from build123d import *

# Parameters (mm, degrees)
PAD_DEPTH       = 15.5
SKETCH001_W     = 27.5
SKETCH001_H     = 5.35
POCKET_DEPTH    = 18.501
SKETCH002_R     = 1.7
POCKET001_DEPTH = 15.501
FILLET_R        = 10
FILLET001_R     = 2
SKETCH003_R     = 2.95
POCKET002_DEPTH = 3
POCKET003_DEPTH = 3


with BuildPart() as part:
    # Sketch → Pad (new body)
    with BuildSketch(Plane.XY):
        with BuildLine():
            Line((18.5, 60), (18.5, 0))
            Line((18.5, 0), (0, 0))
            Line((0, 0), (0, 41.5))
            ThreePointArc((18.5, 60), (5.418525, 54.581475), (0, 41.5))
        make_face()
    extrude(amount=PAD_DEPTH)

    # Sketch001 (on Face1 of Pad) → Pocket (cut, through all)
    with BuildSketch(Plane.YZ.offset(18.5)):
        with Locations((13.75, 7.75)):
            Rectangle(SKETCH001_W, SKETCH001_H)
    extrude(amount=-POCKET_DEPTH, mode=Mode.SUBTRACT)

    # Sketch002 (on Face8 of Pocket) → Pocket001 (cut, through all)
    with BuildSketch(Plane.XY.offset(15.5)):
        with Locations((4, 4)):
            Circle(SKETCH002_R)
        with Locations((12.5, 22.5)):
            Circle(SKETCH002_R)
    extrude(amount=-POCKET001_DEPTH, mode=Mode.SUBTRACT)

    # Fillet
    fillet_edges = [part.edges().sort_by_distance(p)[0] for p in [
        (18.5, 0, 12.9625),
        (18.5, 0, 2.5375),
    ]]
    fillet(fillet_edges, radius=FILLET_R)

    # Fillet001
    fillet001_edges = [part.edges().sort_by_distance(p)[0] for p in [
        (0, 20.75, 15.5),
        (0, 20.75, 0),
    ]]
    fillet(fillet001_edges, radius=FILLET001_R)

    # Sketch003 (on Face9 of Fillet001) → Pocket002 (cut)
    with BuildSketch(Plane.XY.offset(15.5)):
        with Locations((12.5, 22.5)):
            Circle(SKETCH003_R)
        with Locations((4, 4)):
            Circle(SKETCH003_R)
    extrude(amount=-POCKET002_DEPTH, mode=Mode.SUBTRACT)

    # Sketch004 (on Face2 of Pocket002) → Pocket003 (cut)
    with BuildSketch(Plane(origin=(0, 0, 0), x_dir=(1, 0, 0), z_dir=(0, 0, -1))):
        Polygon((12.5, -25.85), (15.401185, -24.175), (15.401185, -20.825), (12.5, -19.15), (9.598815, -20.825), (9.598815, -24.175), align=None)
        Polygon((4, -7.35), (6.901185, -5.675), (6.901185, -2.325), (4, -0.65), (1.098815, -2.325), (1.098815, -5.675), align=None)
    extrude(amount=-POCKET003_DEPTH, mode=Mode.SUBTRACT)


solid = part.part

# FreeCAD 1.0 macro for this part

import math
import FreeCAD as App
import Part
import Sketcher
Q = App.Units.Quantity


def edges_at(feature, points):
    """Names of the edges that pass closest to the given points."""
    edges = feature.Shape.Edges
    near = lambda p: min(range(len(edges)), key=lambda i: edges[i].distToShape(Part.Vertex(*p))[0])
    return sorted({f"Edge{near(p) + 1}" for p in points})


def add_polygon(sketch, points):
    """Adds a closed chain of lines whose ends are joined by coincident constraints."""
    first, n = sketch.GeometryCount, len(points)
    for a, b in zip(points, points[1:] + points[:1]):
        sketch.addGeometry(Part.LineSegment(App.Vector(*a, 0), App.Vector(*b, 0)), False)
    for i in range(n):
        sketch.addConstraint(Sketcher.Constraint("Coincident", first + i, 2, first + (i + 1) % n, 1))

doc = App.newDocument("Part")
body = doc.addObject("PartDesign::Body", "Body")

# Sketch on XY plane
sketch1 = body.newObject("Sketcher::SketchObject", "Sketch")
sketch1.AttachmentSupport = (doc.getObject("XY_Plane"), [""])
sketch1.MapMode = "FlatFace"
sketch1.addGeometry([
    Part.LineSegment(App.Vector(18, 0, 0), App.Vector(18, 60, 0)),
    Part.ArcOfCircle(Part.Circle(App.Vector(19, 41, 0), App.Vector(0, 0, 1), 19), math.radians(90), math.radians(180)),
    Part.LineSegment(App.Vector(0, 42, 0), App.Vector(0, 0, 0)),
    Part.LineSegment(App.Vector(0, 0, 0), App.Vector(18, 0, 0)),
], False)
sketch1.addConstraint([
    Sketcher.Constraint("Coincident", 0, 2, 1, 1),
    Sketcher.Constraint("Tangent", 1, 2, 2, 1),
    Sketcher.Constraint("Coincident", 2, 2, 3, 1),
    Sketcher.Constraint("Coincident", 3, 2, 0, 1),
    Sketcher.Constraint("Vertical", 0),
    Sketcher.Constraint("Vertical", 2),
    Sketcher.Constraint("Horizontal", 3),
    Sketcher.Constraint("Coincident", 2, 2, -1, 1),
    Sketcher.Constraint("Vertical", 1, 3, 0, 2),
    Sketcher.Constraint("Radius", 1, 18.500002),
    Sketcher.Constraint("DistanceY", 0, 1, 0, 2, 60.0),
])
pad1 = body.newObject("PartDesign::Pad", "Pad")
pad1.Profile = sketch1
pad1.Length = 15.5

# Sketch on YZ plane
sketch2 = body.newObject("Sketcher::SketchObject", "Sketch001")
sketch2.AttachmentSupport = (doc.getObject("YZ_Plane"), [""])
sketch2.MapMode = "FlatFace"
sketch2.AttachmentOffset = App.Placement(App.Vector(0, 0, 18.5), App.Rotation())
add_polygon(sketch2, [(0, 10), (0, 5), (28, 5), (28, 10)])  # lines 0-3
sketch2.addConstraint([
    Sketcher.Constraint("Vertical", 0),
    Sketcher.Constraint("Horizontal", 1),
    Sketcher.Constraint("Vertical", 2),
    Sketcher.Constraint("Horizontal", 3),
    Sketcher.Constraint("PointOnObject", 0, 2, -2),
    Sketcher.Constraint("DistanceX", 1, 1, 1, 2, 27.5),
    Sketcher.Constraint("DistanceY", 0, 2, 0, 1, 5.35),
    Sketcher.Constraint("DistanceY", -1, 1, 0, 2, 5.075),
])
pocket1 = body.newObject("PartDesign::Pocket", "Pocket")
pocket1.Profile = sketch2
pocket1.Type = "ThroughAll"

# Sketch on XY plane
sketch3 = body.newObject("Sketcher::SketchObject", "Sketch002")
sketch3.AttachmentSupport = (doc.getObject("XY_Plane"), [""])
sketch3.MapMode = "FlatFace"
sketch3.AttachmentOffset = App.Placement(App.Vector(0, 0, 15.5), App.Rotation())
sketch3.addGeometry([
    Part.Circle(App.Vector(4, 4, 0), App.Vector(0, 0, 1), 1.7),
    Part.Circle(App.Vector(12.5, 22.5, 0), App.Vector(0, 0, 1), 1.7),
], False)
sketch3.addConstraint([
    Sketcher.Constraint("Equal", 0, 1),
    Sketcher.Constraint("Diameter", 0, 3.4),
    Sketcher.Constraint("DistanceX", -1, 1, 0, 3, 4.0),
    Sketcher.Constraint("DistanceY", -1, 1, 0, 3, 4.0),
    Sketcher.Constraint("DistanceX", -1, 1, 1, 3, 12.5),
    Sketcher.Constraint("DistanceY", -1, 1, 1, 3, 22.5),
])
pocket2 = body.newObject("PartDesign::Pocket", "Pocket001")
pocket2.Profile = sketch3
pocket2.Type = "ThroughAll"
doc.recompute()

fillet = body.newObject("PartDesign::Fillet", "Fillet")
fillet.Base = (pocket2, edges_at(pocket2, [(18.5, 0, 12.963), (18.5, 0, 2.538)]))
fillet.Radius = 10
doc.recompute()

fillet2 = body.newObject("PartDesign::Fillet", "Fillet001")
fillet2.Base = (fillet, edges_at(fillet, [(0, 20.75, 15.5), (0, 20.75, 0)]))
fillet2.Radius = 2

# Sketch on XY plane
sketch4 = body.newObject("Sketcher::SketchObject", "Sketch003")
sketch4.AttachmentSupport = (doc.getObject("XY_Plane"), [""])
sketch4.MapMode = "FlatFace"
sketch4.AttachmentOffset = App.Placement(App.Vector(0, 0, 15.5), App.Rotation())
sketch4.addGeometry([
    Part.Circle(App.Vector(12.5, 22.5, 0), App.Vector(0, 0, 1), 3),
    Part.Circle(App.Vector(4, 4, 0), App.Vector(0, 0, 1), 3),
], False)
sketch4.addConstraint([
    Sketcher.Constraint("Equal", 0, 1),
    Sketcher.Constraint("Diameter", 0, 5.9),
    Sketcher.Constraint("DistanceX", -1, 1, 1, 3, 4.0),
    Sketcher.Constraint("DistanceY", -1, 1, 1, 3, 4.0),
    Sketcher.Constraint("DistanceX", -1, 1, 0, 3, 12.5),
    Sketcher.Constraint("DistanceY", -1, 1, 0, 3, 22.5),
])
pocket3 = body.newObject("PartDesign::Pocket", "Pocket002")
pocket3.Profile = sketch4
pocket3.Length = 3

# Sketch on XY plane
sketch5 = body.newObject("Sketcher::SketchObject", "Sketch004")
sketch5.AttachmentSupport = (doc.getObject("XY_Plane"), [""])
sketch5.MapMode = "FlatFace"
add_polygon(sketch5, [(12.5, 25.9), (15.4, 24.2), (15.4, 20.8), (12.5, 19.1), (9.6, 20.8), (9.6, 24.2)])  # lines 0-5
add_polygon(sketch5, [(4, 7.3), (6.9, 5.7), (6.9, 2.3), (4, 0.7), (1.1, 2.3), (1.1, 5.7)])  # lines 6-11
sketch5.addConstraint([
    Sketcher.Constraint("Vertical", 1),
    Sketcher.Constraint("Vertical", 4),
    Sketcher.Constraint("Vertical", 7),
    Sketcher.Constraint("Vertical", 10),
    Sketcher.Constraint("Parallel", 0, 3),
    Sketcher.Constraint("Parallel", 2, 5),
    Sketcher.Constraint("Parallel", 3, 6),
    Sketcher.Constraint("Parallel", 5, 8),
    Sketcher.Constraint("Parallel", 6, 9),
    Sketcher.Constraint("Parallel", 8, 11),
    Sketcher.Constraint("Horizontal", 1, 2, 3, 2),
    Sketcher.Constraint("Horizontal", 0, 2, 4, 2),
    Sketcher.Constraint("Horizontal", 7, 2, 9, 2),
    Sketcher.Constraint("Horizontal", 6, 2, 10, 2),
    Sketcher.Constraint("Vertical", 2, 2, 5, 2),
    Sketcher.Constraint("Equal", 4, 7),
    Sketcher.Constraint("Equal", 5, 6),
    Sketcher.Constraint("Angle", 0, Q("-30.000001 deg")),
    Sketcher.Constraint("DistanceX", -1, 1, 8, 2, 4.0),
    Sketcher.Constraint("DistanceY", 1, 2, 1, 1, 3.35),
    Sketcher.Constraint("DistanceX", -1, 1, 2, 2, 12.5),
    Sketcher.Constraint("DistanceY", 2, 2, 5, 2, 6.7),
    Sketcher.Constraint("DistanceY", 6, 2, 4, 2, 18.5),
    Sketcher.Constraint("DistanceY", -1, 1, 2, 2, 19.15),
])
pocket4 = body.newObject("PartDesign::Pocket", "Pocket003")
pocket4.Profile = sketch5
pocket4.Length = 3
pocket4.Reversed = True

doc.recompute()
